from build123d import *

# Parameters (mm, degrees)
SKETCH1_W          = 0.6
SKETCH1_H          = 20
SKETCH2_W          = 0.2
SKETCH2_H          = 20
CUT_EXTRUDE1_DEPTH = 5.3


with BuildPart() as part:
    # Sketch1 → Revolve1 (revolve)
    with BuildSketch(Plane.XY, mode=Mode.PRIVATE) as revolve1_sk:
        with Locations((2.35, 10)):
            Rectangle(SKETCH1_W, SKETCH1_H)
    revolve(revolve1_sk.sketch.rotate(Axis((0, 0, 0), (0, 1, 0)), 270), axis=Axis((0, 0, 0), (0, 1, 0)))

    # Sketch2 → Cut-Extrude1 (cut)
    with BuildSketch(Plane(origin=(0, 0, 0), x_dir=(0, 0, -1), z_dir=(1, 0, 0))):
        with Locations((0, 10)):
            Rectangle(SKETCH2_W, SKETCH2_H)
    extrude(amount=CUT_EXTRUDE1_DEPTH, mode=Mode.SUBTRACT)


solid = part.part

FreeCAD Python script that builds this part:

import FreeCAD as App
import Part
import Sketcher
from FreeCAD import Vector

doc = App.newDocument("Part")
body = doc.addObject("PartDesign::Body", "Body")

sketch1 = doc.addObject("Sketcher::SketchObject", "Sketch")
body.addObject(sketch1)
sketch1.AttachmentSupport = (doc.XY_Plane, [""])
sketch1.MapMode = "FlatFace"
sketch1.addGeometry([
    Part.LineSegment(Vector(2.05, 20, 0), Vector(2.05, 0, 0)),
    Part.LineSegment(Vector(2.05, 0, 0), Vector(2.65, 0, 0)),
    Part.LineSegment(Vector(2.65, 0, 0), Vector(2.65, 20, 0)),
    Part.LineSegment(Vector(2.65, 20, 0), Vector(2.05, 20, 0)),
], False)
sketch1.addConstraint([
    Sketcher.Constraint("Coincident", 0, 2, 1, 1),
    Sketcher.Constraint("Coincident", 1, 2, 2, 1),
    Sketcher.Constraint("Coincident", 2, 2, 3, 1),
    Sketcher.Constraint("Coincident", 3, 2, 0, 1),
    Sketcher.Constraint("Vertical", 0),
    Sketcher.Constraint("Horizontal", 1),
    Sketcher.Constraint("Vertical", 2),
    Sketcher.Constraint("Horizontal", 3),
    Sketcher.Constraint("PointOnObject", 0, 2, -1),
    Sketcher.Constraint("DistanceY", 0, 2, 0, 1, 20.0),
    Sketcher.Constraint("DistanceX", 1, 1, 1, 2, 0.6),
    Sketcher.Constraint("DistanceX", -1, 1, 0, 2, 2.05),
])
revolution = doc.addObject("PartDesign::Revolution", "Revolution")
body.addObject(revolution)
revolution.Profile = sketch1
revolution.ReferenceAxis = (sketch1, ["V_Axis"])
revolution.Angle = 360

sketch2 = doc.addObject("Sketcher::SketchObject", "Sketch001")
body.addObject(sketch2)
sketch2.AttachmentSupport = (doc.YZ_Plane, [""])
sketch2.MapMode = "FlatFace"
sketch2.addGeometry([
    Part.LineSegment(Vector(20, 0.1, 0), Vector(0, 0.1, 0)),
    Part.LineSegment(Vector(0, 0.1, 0), Vector(0, -0.1, 0)),
    Part.LineSegment(Vector(0, -0.1, 0), Vector(20, -0.1, 0)),
    Part.LineSegment(Vector(20, -0.1, 0), Vector(20, 0.1, 0)),
], False)
sketch2.addConstraint([
    Sketcher.Constraint("Coincident", 0, 2, 1, 1),
    Sketcher.Constraint("Coincident", 1, 2, 2, 1),
    Sketcher.Constraint("Coincident", 2, 2, 3, 1),
    Sketcher.Constraint("Coincident", 3, 2, 0, 1),
    Sketcher.Constraint("Horizontal", 0),
    Sketcher.Constraint("Vertical", 1),
    Sketcher.Constraint("Horizontal", 2),
    Sketcher.Constraint("Vertical", 3),
    Sketcher.Constraint("Symmetric", 0, 2, 1, 2, -1, 1),
    Sketcher.Constraint("DistanceX", 0, 2, 0, 1, 20.0),
    Sketcher.Constraint("DistanceY", 1, 2, 1, 1, 0.2),
])
pocket1 = doc.addObject("PartDesign::Pocket", "Pocket")
body.addObject(pocket1)
pocket1.Profile = sketch2
pocket1.Length = 5.3
pocket1.Reversed = True

doc.recompute()
